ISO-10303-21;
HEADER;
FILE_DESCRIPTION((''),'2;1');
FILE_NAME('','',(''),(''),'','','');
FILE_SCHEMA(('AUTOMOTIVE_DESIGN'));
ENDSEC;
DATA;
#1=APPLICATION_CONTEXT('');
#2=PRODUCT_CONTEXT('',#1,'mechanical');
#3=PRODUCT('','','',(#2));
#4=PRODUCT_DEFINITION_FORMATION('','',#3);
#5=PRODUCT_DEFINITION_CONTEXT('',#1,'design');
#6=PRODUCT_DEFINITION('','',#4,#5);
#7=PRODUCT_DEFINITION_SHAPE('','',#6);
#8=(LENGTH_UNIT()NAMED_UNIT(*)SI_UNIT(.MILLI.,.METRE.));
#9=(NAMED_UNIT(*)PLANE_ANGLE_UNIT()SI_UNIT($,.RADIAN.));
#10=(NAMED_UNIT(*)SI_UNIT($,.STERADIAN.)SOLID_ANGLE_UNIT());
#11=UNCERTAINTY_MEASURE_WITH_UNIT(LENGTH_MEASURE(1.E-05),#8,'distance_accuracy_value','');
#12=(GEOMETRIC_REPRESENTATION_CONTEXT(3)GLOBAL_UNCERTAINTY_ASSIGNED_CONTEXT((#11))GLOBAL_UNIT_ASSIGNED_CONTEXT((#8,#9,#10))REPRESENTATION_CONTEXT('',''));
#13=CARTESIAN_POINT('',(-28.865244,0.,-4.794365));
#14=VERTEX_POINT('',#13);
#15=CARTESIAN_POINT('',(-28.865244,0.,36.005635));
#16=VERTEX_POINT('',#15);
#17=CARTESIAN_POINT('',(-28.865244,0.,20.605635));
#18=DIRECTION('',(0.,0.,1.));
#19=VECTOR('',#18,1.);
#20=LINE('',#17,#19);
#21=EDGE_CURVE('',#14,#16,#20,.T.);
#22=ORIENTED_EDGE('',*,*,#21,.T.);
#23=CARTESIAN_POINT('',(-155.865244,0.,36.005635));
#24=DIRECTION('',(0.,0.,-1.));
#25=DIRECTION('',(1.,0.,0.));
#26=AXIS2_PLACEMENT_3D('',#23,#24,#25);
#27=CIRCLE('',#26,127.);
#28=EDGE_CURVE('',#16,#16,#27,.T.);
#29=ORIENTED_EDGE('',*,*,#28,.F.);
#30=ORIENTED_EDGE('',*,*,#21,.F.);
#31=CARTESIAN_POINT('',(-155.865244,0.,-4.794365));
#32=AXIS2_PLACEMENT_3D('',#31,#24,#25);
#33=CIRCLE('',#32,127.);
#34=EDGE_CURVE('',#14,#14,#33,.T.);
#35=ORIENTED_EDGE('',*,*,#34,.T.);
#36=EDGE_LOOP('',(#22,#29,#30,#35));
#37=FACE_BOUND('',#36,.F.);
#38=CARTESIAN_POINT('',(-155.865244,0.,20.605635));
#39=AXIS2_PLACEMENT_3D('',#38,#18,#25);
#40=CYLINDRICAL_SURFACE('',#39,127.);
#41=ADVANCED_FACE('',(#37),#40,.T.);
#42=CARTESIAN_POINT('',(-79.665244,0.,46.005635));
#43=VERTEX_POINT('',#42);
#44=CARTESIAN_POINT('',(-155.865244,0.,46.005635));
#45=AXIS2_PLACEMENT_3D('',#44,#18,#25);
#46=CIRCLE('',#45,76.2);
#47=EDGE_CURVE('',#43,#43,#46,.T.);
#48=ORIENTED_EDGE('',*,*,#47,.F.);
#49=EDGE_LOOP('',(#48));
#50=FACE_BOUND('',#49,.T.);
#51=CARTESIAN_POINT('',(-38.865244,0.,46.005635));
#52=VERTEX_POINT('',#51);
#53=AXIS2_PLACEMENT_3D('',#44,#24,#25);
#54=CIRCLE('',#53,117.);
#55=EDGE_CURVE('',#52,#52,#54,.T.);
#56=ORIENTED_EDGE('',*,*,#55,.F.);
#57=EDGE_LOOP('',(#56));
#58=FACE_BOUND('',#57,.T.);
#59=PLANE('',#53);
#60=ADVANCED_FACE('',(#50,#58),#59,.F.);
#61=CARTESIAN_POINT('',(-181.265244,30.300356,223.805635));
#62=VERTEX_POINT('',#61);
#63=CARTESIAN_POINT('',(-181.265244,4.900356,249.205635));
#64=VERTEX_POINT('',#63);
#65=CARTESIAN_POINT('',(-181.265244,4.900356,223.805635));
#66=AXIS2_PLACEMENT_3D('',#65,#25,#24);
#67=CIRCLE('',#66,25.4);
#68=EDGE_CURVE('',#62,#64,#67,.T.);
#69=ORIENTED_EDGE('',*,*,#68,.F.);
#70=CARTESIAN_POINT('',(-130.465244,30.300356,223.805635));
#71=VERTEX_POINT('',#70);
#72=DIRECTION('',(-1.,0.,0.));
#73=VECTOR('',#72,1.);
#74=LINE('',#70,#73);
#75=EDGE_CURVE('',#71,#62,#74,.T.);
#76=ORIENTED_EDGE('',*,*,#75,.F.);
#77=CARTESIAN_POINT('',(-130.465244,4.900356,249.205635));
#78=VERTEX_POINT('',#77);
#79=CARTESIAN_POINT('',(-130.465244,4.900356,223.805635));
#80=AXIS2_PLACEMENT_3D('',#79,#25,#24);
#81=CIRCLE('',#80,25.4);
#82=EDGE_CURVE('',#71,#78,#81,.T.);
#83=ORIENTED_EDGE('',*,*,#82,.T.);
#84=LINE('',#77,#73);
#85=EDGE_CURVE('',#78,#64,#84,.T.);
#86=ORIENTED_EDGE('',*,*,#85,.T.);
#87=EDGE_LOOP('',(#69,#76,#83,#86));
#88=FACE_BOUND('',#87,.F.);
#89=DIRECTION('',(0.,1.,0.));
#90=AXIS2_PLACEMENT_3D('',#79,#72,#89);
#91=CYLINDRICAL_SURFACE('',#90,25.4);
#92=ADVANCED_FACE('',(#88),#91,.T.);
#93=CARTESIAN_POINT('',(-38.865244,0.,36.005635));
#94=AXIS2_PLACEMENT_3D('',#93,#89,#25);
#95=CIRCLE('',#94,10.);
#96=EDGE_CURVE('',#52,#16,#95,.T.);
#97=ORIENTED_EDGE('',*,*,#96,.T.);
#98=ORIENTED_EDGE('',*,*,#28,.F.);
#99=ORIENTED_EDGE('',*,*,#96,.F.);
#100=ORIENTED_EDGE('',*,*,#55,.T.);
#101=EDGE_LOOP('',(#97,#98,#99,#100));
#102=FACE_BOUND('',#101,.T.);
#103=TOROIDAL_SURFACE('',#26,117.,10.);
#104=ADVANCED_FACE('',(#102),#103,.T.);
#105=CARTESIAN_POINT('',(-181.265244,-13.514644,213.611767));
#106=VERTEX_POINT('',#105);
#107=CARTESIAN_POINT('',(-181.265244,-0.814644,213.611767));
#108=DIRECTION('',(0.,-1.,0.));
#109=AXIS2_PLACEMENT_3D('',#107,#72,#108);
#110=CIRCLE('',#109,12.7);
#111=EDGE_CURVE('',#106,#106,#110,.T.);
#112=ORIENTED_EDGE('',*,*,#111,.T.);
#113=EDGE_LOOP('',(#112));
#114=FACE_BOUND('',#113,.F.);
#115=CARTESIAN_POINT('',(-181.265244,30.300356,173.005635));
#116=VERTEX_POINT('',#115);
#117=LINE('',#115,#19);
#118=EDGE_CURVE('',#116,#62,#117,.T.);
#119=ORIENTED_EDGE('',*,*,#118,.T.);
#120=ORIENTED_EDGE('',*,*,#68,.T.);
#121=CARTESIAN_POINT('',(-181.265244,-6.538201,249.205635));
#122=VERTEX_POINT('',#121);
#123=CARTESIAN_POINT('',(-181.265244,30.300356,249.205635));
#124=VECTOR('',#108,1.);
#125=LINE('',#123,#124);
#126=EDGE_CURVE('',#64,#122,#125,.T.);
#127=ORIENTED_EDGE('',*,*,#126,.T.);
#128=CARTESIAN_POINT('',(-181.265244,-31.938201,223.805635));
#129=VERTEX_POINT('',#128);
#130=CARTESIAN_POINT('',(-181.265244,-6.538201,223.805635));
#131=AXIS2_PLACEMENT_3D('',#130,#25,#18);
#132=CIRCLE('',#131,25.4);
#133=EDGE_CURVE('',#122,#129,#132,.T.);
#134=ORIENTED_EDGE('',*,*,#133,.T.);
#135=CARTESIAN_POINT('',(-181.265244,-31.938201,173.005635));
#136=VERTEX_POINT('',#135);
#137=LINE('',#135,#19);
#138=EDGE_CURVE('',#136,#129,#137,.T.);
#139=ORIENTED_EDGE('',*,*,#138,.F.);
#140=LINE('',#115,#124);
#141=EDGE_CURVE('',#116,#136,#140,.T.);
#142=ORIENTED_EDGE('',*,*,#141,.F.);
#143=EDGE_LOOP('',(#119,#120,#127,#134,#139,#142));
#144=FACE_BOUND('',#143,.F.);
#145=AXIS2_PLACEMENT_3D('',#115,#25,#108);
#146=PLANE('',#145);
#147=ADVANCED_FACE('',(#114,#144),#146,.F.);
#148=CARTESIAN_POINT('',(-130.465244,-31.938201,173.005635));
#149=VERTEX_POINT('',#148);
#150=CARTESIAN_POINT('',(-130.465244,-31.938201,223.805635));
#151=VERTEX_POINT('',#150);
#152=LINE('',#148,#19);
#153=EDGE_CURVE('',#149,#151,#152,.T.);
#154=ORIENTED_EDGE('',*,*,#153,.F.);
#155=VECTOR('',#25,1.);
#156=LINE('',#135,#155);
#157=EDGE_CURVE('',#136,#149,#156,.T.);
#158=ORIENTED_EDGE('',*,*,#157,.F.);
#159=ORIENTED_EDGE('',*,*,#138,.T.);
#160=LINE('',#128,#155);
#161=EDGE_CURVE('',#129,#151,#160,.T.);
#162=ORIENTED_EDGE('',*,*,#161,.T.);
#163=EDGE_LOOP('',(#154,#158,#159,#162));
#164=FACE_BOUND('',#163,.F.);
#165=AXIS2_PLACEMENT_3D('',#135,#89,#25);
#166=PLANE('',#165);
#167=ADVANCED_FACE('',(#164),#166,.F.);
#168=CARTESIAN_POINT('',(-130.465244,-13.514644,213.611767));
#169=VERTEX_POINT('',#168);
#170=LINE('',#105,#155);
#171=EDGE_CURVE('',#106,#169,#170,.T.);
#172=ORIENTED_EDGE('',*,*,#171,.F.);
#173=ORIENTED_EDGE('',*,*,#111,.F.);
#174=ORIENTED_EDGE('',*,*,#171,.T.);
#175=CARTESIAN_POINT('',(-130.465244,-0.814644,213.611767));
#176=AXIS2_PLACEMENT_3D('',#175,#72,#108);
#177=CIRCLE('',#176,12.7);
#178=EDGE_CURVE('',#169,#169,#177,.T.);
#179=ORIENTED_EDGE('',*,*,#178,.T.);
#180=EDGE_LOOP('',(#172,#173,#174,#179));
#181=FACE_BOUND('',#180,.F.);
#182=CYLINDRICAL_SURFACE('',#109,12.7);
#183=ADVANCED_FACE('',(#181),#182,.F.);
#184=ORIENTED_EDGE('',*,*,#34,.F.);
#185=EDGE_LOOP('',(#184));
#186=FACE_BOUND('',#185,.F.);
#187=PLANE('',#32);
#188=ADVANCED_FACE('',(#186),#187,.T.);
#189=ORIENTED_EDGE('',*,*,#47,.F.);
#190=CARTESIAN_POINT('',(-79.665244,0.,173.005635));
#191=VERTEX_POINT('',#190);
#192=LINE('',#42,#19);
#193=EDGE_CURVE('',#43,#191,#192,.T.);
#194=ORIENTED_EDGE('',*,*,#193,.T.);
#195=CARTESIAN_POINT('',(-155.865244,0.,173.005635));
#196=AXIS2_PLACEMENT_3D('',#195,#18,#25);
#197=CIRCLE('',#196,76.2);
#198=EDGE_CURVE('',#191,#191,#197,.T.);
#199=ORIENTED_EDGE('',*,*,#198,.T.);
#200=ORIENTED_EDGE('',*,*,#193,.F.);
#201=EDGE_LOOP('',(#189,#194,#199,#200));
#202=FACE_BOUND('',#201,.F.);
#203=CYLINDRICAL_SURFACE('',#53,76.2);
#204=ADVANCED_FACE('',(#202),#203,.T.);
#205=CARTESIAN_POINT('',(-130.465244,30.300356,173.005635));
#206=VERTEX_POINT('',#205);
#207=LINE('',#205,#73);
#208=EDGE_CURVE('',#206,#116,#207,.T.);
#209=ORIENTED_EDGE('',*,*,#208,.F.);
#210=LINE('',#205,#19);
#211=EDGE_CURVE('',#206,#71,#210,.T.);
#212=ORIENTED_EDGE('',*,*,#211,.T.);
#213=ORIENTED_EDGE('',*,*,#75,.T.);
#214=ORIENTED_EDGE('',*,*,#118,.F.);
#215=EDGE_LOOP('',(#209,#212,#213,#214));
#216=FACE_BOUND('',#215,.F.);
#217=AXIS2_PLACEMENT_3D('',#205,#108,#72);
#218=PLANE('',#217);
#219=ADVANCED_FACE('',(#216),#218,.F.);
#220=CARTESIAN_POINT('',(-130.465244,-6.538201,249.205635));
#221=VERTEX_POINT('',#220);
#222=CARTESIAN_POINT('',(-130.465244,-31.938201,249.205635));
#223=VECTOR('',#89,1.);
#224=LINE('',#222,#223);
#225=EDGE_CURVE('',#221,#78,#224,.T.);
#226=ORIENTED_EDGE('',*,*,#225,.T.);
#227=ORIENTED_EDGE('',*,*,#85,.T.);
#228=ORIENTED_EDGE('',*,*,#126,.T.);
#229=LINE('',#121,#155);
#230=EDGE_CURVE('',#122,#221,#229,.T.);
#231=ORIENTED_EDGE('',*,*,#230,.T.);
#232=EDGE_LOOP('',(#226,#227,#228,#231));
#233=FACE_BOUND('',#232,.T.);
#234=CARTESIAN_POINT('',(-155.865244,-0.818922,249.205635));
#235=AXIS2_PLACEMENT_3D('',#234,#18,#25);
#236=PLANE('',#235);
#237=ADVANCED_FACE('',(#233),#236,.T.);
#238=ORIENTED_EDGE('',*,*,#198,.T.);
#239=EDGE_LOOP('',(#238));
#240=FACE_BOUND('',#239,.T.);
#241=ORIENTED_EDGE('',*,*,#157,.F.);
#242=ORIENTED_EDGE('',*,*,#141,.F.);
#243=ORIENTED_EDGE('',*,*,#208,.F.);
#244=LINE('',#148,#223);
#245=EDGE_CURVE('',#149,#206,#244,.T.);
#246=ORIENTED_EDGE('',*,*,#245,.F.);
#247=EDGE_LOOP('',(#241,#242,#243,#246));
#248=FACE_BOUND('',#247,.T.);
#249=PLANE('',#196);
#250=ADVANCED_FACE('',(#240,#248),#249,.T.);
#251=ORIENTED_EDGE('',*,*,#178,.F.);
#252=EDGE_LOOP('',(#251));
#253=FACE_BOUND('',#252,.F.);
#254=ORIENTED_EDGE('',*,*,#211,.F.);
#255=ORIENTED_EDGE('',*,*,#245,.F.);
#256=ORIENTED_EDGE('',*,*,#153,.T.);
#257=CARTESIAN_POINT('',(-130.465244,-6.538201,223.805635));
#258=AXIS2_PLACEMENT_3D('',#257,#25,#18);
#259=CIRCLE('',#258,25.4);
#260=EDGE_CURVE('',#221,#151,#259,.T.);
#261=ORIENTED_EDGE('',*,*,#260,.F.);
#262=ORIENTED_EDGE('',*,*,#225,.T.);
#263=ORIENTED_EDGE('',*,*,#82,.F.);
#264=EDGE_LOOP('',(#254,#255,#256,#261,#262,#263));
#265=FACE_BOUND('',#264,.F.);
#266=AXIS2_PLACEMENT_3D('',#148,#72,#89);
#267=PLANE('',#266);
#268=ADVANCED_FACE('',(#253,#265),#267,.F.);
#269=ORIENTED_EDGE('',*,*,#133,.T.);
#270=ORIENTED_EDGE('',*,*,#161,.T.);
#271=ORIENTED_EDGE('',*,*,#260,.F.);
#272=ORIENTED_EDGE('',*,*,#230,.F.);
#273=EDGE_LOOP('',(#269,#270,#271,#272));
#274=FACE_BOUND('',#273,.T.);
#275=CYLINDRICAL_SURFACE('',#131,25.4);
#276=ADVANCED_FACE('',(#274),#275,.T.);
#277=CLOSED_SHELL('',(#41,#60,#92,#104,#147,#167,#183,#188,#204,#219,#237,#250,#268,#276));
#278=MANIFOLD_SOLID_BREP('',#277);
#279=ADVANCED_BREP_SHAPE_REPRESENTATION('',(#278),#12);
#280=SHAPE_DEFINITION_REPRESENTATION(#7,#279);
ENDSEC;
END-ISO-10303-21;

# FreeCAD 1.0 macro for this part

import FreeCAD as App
import Part
import Sketcher
Q = App.Units.Quantity


def edges_at(feature, points):
    """Names of the edges that pass closest to the given points."""
    edges = feature.Shape.Edges
    near = lambda p: min(range(len(edges)), key=lambda i: edges[i].distToShape(Part.Vertex(*p))[0])
    return sorted({f"Edge{near(p) + 1}" for p in points})

doc = App.newDocument("Part")
body = doc.addObject("PartDesign::Body", "Body")

sketch1 = body.newObject("Sketcher::SketchObject", "Sketch")
sketch1.AttachmentSupport = (doc.getObject("XZ_Plane"), [""])
sketch1.MapMode = "FlatFace"
sketch1.addGeometry(Part.LineSegment(App.Vector(-156, 46, 0), App.Vector(-156, -5, 0)), False)
sketch1.addGeometry(Part.LineSegment(App.Vector(-156, -5, 0), App.Vector(-29, -5, 0)), False)
sketch1.addGeometry(Part.LineSegment(App.Vector(-29, -5, 0), App.Vector(-29, 46, 0)), False)
sketch1.addGeometry(Part.LineSegment(App.Vector(-29, 46, 0), App.Vector(-156, 46, 0)), False)
sketch1.addGeometry(Part.LineSegment(App.Vector(-156, 46, 0), App.Vector(-156, -5, 0)), True)
sketch1.addConstraint(Sketcher.Constraint("Coincident", 0, 2, 1, 1))
sketch1.addConstraint(Sketcher.Constraint("Coincident", 1, 2, 2, 1))
sketch1.addConstraint(Sketcher.Constraint("Coincident", 2, 2, 3, 1))
sketch1.addConstraint(Sketcher.Constraint("Coincident", 3, 2, 0, 1))
sketch1.addConstraint(Sketcher.Constraint("Vertical", 0))
sketch1.addConstraint(Sketcher.Constraint("Horizontal", 1))
sketch1.addConstraint(Sketcher.Constraint("Vertical", 2))
sketch1.addConstraint(Sketcher.Constraint("Horizontal", 3))
sketch1.addConstraint(Sketcher.Constraint("Vertical", 4))
sketch1.addConstraint(Sketcher.Constraint("Coincident", 4, 1, 3, 2))
sketch1.addConstraint(Sketcher.Constraint("Horizontal", 1, 2, 4, 2))
sketch1.addConstraint(Sketcher.Constraint("DistanceX", 1, 1, 1, 2, Q("5 in")))
sketch1.addConstraint(Sketcher.Constraint("DistanceY", 0, 2, 0, 1, Q("2 in")))
sketch1.addConstraint(Sketcher.Constraint("DistanceX", 0, 2, -1, 1, Q("155.865244 mm")))
sketch1.addConstraint(Sketcher.Constraint("DistanceY", 0, 2, -1, 1, Q("4.794365 mm")))
revolution = body.newObject("PartDesign::Revolution", "Revolution")
revolution.Profile = sketch1
revolution.ReferenceAxis = (sketch1, ["Axis0"])
revolution.Angle = 360

sketch2 = body.newObject("Sketcher::SketchObject", "Sketch001")
sketch2.AttachmentSupport = (doc.getObject("XY_Plane"), [""])
sketch2.MapMode = "FlatFace"
sketch2.AttachmentOffset = App.Placement(App.Vector(0, 0, 46.005635), App.Rotation())
sketch2.addGeometry(Part.Circle(App.Vector(-156, 0, 0), App.Vector(0, 0, 1), 76), False)
sketch2.addConstraint(Sketcher.Constraint("PointOnObject", 0, 3, -1))
sketch2.addConstraint(Sketcher.Constraint("Diameter", 0, Q("6 in")))
sketch2.addConstraint(Sketcher.Constraint("DistanceX", 0, 3, -1, 1, Q("155.865244 mm")))
pad1 = body.newObject("PartDesign::Pad", "Pad")
pad1.Profile = sketch2
pad1.Length = Q("5 in")

sketch3 = body.newObject("Sketcher::SketchObject", "Sketch002")
sketch3.AttachmentSupport = (doc.getObject("XY_Plane"), [""])
sketch3.MapMode = "FlatFace"
sketch3.AttachmentOffset = App.Placement(App.Vector(0, 0, 173.005635), App.Rotation())
sketch3.addGeometry(Part.LineSegment(App.Vector(-130, 30, 0), App.Vector(-181, 30, 0)), False)
sketch3.addGeometry(Part.LineSegment(App.Vector(-181, 30, 0), App.Vector(-181, -32, 0)), False)
sketch3.addGeometry(Part.LineSegment(App.Vector(-181, -32, 0), App.Vector(-130, -32, 0)), False)
sketch3.addGeometry(Part.LineSegment(App.Vector(-130, -32, 0), App.Vector(-130, 30, 0)), False)
sketch3.addConstraint(Sketcher.Constraint("Coincident", 0, 2, 1, 1))
sketch3.addConstraint(Sketcher.Constraint("Coincident", 1, 2, 2, 1))
sketch3.addConstraint(Sketcher.Constraint("Coincident", 2, 2, 3, 1))
sketch3.addConstraint(Sketcher.Constraint("Coincident", 3, 2, 0, 1))
sketch3.addConstraint(Sketcher.Constraint("Horizontal", 0))
sketch3.addConstraint(Sketcher.Constraint("Vertical", 1))
sketch3.addConstraint(Sketcher.Constraint("Horizontal", 2))
sketch3.addConstraint(Sketcher.Constraint("Vertical", 3))
sketch3.addConstraint(Sketcher.Constraint("DistanceX", 0, 2, 0, 1, Q("2 in")))
sketch3.addConstraint(Sketcher.Constraint("DistanceY", 1, 2, -1, 1, Q("31.938201 mm")))
sketch3.addConstraint(Sketcher.Constraint("DistanceY", 1, 2, 1, 1, Q("62.238557 mm")))
sketch3.addConstraint(Sketcher.Constraint("DistanceX", 0, 2, -1, 1, Q("181.265244 mm")))
pad2 = body.newObject("PartDesign::Pad", "Pad001")
pad2.Profile = sketch3
pad2.Length = Q("3 in")
doc.recompute()

fillet = body.newObject("PartDesign::Fillet", "Fillet")
fillet.Base = (pad2, edges_at(pad2, [(-155.865, 30.3, 249.206)]))
fillet.Radius = Q("1 in")
doc.recompute()

fillet2 = body.newObject("PartDesign::Fillet", "Fillet001")
fillet2.Base = (fillet, edges_at(fillet, [(-155.865, -31.938, 249.206)]))
fillet2.Radius = Q("1 in")

sketch4 = body.newObject("Sketcher::SketchObject", "Sketch003")
sketch4.AttachmentSupport = (doc.getObject("YZ_Plane"), [""])
sketch4.MapMode = "FlatFace"
sketch4.AttachmentOffset = App.Placement(App.Vector(0, 0, -181.265244), App.Rotation())
sketch4.addGeometry(Part.Circle(App.Vector(-1, 214, 0), App.Vector(0, 0, 1), 13), False)
sketch4.addConstraint(Sketcher.Constraint("Diameter", 0, Q("1 in")))
sketch4.addConstraint(Sketcher.Constraint("DistanceX", 0, 3, -1, 1, Q("0.814644 mm")))
sketch4.addConstraint(Sketcher.Constraint("DistanceY", -1, 1, 0, 3, Q("213.611767 mm")))
pocket1 = body.newObject("PartDesign::Pocket", "Pocket")
pocket1.Profile = sketch4
pocket1.Type = "ThroughAll"
pocket1.Reversed = True
doc.recompute()

fillet3 = body.newObject("PartDesign::Fillet", "Fillet002")
fillet3.Base = (pocket1, edges_at(pocket1, [(-282.865, 0, 46.006)]))
fillet3.Radius = 10

doc.recompute()
